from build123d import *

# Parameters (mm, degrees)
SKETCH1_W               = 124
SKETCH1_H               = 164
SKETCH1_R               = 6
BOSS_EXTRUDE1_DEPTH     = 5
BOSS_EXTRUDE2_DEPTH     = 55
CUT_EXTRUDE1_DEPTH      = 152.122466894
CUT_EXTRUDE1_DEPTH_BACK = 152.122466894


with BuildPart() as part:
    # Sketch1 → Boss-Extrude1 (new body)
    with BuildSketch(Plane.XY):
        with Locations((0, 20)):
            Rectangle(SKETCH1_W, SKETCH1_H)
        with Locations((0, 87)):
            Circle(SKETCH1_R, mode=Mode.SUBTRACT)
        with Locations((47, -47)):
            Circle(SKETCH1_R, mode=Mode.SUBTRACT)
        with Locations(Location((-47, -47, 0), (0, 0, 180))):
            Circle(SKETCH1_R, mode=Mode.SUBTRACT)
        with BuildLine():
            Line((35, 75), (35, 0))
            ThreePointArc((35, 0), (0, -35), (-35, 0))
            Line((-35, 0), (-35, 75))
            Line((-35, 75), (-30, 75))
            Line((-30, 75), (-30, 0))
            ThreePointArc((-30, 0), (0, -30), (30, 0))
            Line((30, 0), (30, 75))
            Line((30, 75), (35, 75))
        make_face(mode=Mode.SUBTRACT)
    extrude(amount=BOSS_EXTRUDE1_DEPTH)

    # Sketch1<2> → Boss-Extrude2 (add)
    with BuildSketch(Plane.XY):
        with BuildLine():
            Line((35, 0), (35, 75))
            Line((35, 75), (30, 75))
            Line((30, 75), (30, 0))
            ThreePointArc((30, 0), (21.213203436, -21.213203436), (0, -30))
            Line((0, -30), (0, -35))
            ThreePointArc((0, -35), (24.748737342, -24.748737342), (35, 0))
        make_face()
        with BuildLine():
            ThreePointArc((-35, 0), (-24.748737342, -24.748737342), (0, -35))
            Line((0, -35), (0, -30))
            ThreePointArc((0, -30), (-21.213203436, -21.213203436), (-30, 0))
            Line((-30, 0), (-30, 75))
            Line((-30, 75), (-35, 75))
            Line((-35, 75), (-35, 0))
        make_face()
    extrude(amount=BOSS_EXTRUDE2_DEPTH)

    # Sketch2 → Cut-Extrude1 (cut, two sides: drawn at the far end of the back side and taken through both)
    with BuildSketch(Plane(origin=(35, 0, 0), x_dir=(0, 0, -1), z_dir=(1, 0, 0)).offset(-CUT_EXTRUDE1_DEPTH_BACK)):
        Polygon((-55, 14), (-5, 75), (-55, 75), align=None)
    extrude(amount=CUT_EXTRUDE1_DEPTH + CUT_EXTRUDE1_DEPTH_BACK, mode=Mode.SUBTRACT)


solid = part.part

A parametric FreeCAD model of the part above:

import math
import FreeCAD as App
import Part
import Sketcher

doc = App.newDocument("Part")
body = doc.addObject("PartDesign::Body", "Body")

sketch1 = body.newObject("Sketcher::SketchObject", "Sketch")
sketch1.AttachmentSupport = (doc.getObject("XY_Plane"), [""])
sketch1.MapMode = "FlatFace"
sketch1.addGeometry(Part.LineSegment(App.Vector(-62, 102, 0), App.Vector(-62, -62, 0)), False)
sketch1.addGeometry(Part.LineSegment(App.Vector(-62, -62, 0), App.Vector(62, -62, 0)), False)
sketch1.addGeometry(Part.LineSegment(App.Vector(62, -62, 0), App.Vector(62, 102, 0)), False)
sketch1.addGeometry(Part.LineSegment(App.Vector(62, 102, 0), App.Vector(-62, 102, 0)), False)
sketch1.addGeometry(Part.Circle(App.Vector(-47, -47, 0), App.Vector(0, 0, 1), 6), False)
sketch1.addGeometry(Part.Circle(App.Vector(47, -47, 0), App.Vector(0, 0, 1), 6), False)
sketch1.addGeometry(Part.LineSegment(App.Vector(30, 75, 0), App.Vector(35, 75, 0)), False)
sketch1.addGeometry(Part.LineSegment(App.Vector(35, 75, 0), App.Vector(35, 0, 0)), False)
sketch1.addGeometry(Part.ArcOfCircle(Part.Circle(App.Vector(0, 0, 0), App.Vector(0, 0, 1), 35), math.radians(180), math.radians(360)), False)
sketch1.addGeometry(Part.LineSegment(App.Vector(-35, 0, 0), App.Vector(-35, 75, 0)), False)
sketch1.addGeometry(Part.LineSegment(App.Vector(-35, 75, 0), App.Vector(-30, 75, 0)), False)
sketch1.addGeometry(Part.LineSegment(App.Vector(-30, 75, 0), App.Vector(-30, 0, 0)), False)
sketch1.addGeometry(Part.ArcOfCircle(Part.Circle(App.Vector(0, 0, 0), App.Vector(0, 0, 1), 30), math.radians(180), math.radians(360)), False)
sketch1.addGeometry(Part.LineSegment(App.Vector(30, 0, 0), App.Vector(30, 75, 0)), False)
sketch1.addGeometry(Part.Circle(App.Vector(0, 87, 0), App.Vector(0, 0, 1), 6), False)
sketch1.addConstraint(Sketcher.Constraint("Coincident", 0, 2, 1, 1))
sketch1.addConstraint(Sketcher.Constraint("Coincident", 1, 2, 2, 1))
sketch1.addConstraint(Sketcher.Constraint("Coincident", 2, 2, 3, 1))
sketch1.addConstraint(Sketcher.Constraint("Coincident", 3, 2, 0, 1))
sketch1.addConstraint(Sketcher.Constraint("Coincident", 6, 2, 7, 1))
sketch1.addConstraint(Sketcher.Constraint("Tangent", 7, 2, 8, 2))
sketch1.addConstraint(Sketcher.Constraint("Tangent", 8, 1, 9, 1))
sketch1.addConstraint(Sketcher.Constraint("Coincident", 9, 2, 10, 1))
sketch1.addConstraint(Sketcher.Constraint("Coincident", 10, 2, 11, 1))
sketch1.addConstraint(Sketcher.Constraint("Tangent", 11, 2, 12, 1))
sketch1.addConstraint(Sketcher.Constraint("Tangent", 12, 2, 13, 1))
sketch1.addConstraint(Sketcher.Constraint("Coincident", 13, 2, 6, 1))
sketch1.addConstraint(Sketcher.Constraint("Vertical", 0))
sketch1.addConstraint(Sketcher.Constraint("Horizontal", 1))
sketch1.addConstraint(Sketcher.Constraint("Vertical", 2))
sketch1.addConstraint(Sketcher.Constraint("Horizontal", 3))
sketch1.addConstraint(Sketcher.Constraint("Horizontal", 6))
sketch1.addConstraint(Sketcher.Constraint("Vertical", 7))
sketch1.addConstraint(Sketcher.Constraint("Vertical", 9))
sketch1.addConstraint(Sketcher.Constraint("Horizontal", 10))
sketch1.addConstraint(Sketcher.Constraint("Vertical", 11))
sketch1.addConstraint(Sketcher.Constraint("Vertical", 13))
sketch1.addConstraint(Sketcher.Constraint("Coincident", 8, 3, -1, 1))
sketch1.addConstraint(Sketcher.Constraint("Coincident", 12, 3, -1, 1))
sketch1.addConstraint(Sketcher.Constraint("Equal", 4, 5))
sketch1.addConstraint(Sketcher.Constraint("Equal", 5, 14))
sketch1.addConstraint(Sketcher.Constraint("Symmetric", 4, 3, 5, 3, -2))
sketch1.addConstraint(Sketcher.Constraint("PointOnObject", 14, 3, -2))
sketch1.addConstraint(Sketcher.Constraint("Horizontal", 6, 2, 9, 2))
sketch1.addConstraint(Sketcher.Constraint("Diameter", 4, 12.0))
sketch1.addConstraint(Sketcher.Constraint("Radius", 8, 35.0))
sketch1.addConstraint(Sketcher.Constraint("Radius", 12, 30.0))
sketch1.addConstraint(Sketcher.Constraint("DistanceX", 1, 1, 1, 2, 124.0))
sketch1.addConstraint(Sketcher.Constraint("DistanceY", 0, 2, 0, 1, 164.0))
sketch1.addConstraint(Sketcher.Constraint("DistanceY", 7, 2, 7, 1, 75.0))
sketch1.addConstraint(Sketcher.Constraint("DistanceX", 4, 3, -1, 1, 47.0))
sketch1.addConstraint(Sketcher.Constraint("DistanceY", 4, 3, -1, 1, 47.0))
sketch1.addConstraint(Sketcher.Constraint("DistanceY", -1, 1, 14, 3, 87.0))
sketch1.addConstraint(Sketcher.Constraint("DistanceX", 0, 2, -1, 1, 62.0))
sketch1.addConstraint(Sketcher.Constraint("DistanceY", 0, 2, -1, 1, 62.0))
pad1 = body.newObject("PartDesign::Pad", "Pad")
pad1.Profile = sketch1
pad1.Length = 5

sketch2 = body.newObject("Sketcher::SketchObject", "Sketch001")
sketch2.AttachmentSupport = (doc.getObject("XY_Plane"), [""])
sketch2.MapMode = "FlatFace"
sketch2.addGeometry(Part.LineSegment(App.Vector(35, 0, 0), App.Vector(35, 75, 0)), False)
sketch2.addGeometry(Part.LineSegment(App.Vector(35, 75, 0), App.Vector(30, 75, 0)), False)
sketch2.addGeometry(Part.LineSegment(App.Vector(30, 75, 0), App.Vector(30, 0, 0)), False)
sketch2.addGeometry(Part.ArcOfCircle(Part.Circle(App.Vector(0, 0, 0), App.Vector(0, 0, 1), 30), math.radians(-90), math.radians(0)), False)
sketch2.addGeometry(Part.ArcOfCircle(Part.Circle(App.Vector(0, 0, 0), App.Vector(0, 0, 1), 30), math.radians(180), math.radians(270)), False)
sketch2.addGeometry(Part.LineSegment(App.Vector(-30, 0, 0), App.Vector(-30, 75, 0)), False)
sketch2.addGeometry(Part.LineSegment(App.Vector(-30, 75, 0), App.Vector(-35, 75, 0)), False)
sketch2.addGeometry(Part.LineSegment(App.Vector(-35, 75, 0), App.Vector(-35, 0, 0)), False)
sketch2.addGeometry(Part.ArcOfCircle(Part.Circle(App.Vector(0, 0, 0), App.Vector(0, 0, 1), 35), math.radians(180), math.radians(270)), False)
sketch2.addGeometry(Part.ArcOfCircle(Part.Circle(App.Vector(0, 0, 0), App.Vector(0, 0, 1), 35), math.radians(-90), math.radians(0)), False)
sketch2.addConstraint(Sketcher.Constraint("Coincident", 0, 2, 1, 1))
sketch2.addConstraint(Sketcher.Constraint("Coincident", 1, 2, 2, 1))
sketch2.addConstraint(Sketcher.Constraint("Tangent", 2, 2, 3, 2))
sketch2.addConstraint(Sketcher.Constraint("Tangent", 3, 1, 4, 2))
sketch2.addConstraint(Sketcher.Constraint("Tangent", 4, 1, 5, 1))
sketch2.addConstraint(Sketcher.Constraint("Coincident", 5, 2, 6, 1))
sketch2.addConstraint(Sketcher.Constraint("Coincident", 6, 2, 7, 1))
sketch2.addConstraint(Sketcher.Constraint("Tangent", 7, 2, 8, 1))
sketch2.addConstraint(Sketcher.Constraint("Tangent", 8, 2, 9, 1))
sketch2.addConstraint(Sketcher.Constraint("Tangent", 9, 2, 0, 1))
sketch2.addConstraint(Sketcher.Constraint("Vertical", 0))
sketch2.addConstraint(Sketcher.Constraint("Horizontal", 1))
sketch2.addConstraint(Sketcher.Constraint("Vertical", 2))
sketch2.addConstraint(Sketcher.Constraint("Vertical", 5))
sketch2.addConstraint(Sketcher.Constraint("Horizontal", 6))
sketch2.addConstraint(Sketcher.Constraint("Vertical", 7))
sketch2.addConstraint(Sketcher.Constraint("Coincident", 3, 3, -1, 1))
sketch2.addConstraint(Sketcher.Constraint("Coincident", 8, 3, -1, 1))
sketch2.addConstraint(Sketcher.Constraint("Equal", 3, 4))
sketch2.addConstraint(Sketcher.Constraint("Equal", 8, 9))
sketch2.addConstraint(Sketcher.Constraint("PointOnObject", 3, 1, -2))
sketch2.addConstraint(Sketcher.Constraint("PointOnObject", 8, 2, -2))
sketch2.addConstraint(Sketcher.Constraint("Horizontal", 1, 2, 5, 2))
sketch2.addConstraint(Sketcher.Constraint("Radius", 3, 30.0))
sketch2.addConstraint(Sketcher.Constraint("Radius", 8, 35.0))
sketch2.addConstraint(Sketcher.Constraint("DistanceY", 0, 1, 0, 2, 75.0))
pad2 = body.newObject("PartDesign::Pad", "Pad001")
pad2.Profile = sketch2
pad2.Length = 55

sketch3 = body.newObject("Sketcher::SketchObject", "Sketch002")
sketch3.AttachmentSupport = (doc.getObject("YZ_Plane"), [""])
sketch3.MapMode = "FlatFace"
sketch3.AttachmentOffset = App.Placement(App.Vector(0, 0, 35), App.Rotation())
sketch3.addGeometry(Part.LineSegment(App.Vector(14, 55, 0), App.Vector(75, 5, 0)), False)
sketch3.addGeometry(Part.LineSegment(App.Vector(75, 5, 0), App.Vector(75, 55, 0)), False)
sketch3.addGeometry(Part.LineSegment(App.Vector(75, 55, 0), App.Vector(14, 55, 0)), False)
sketch3.addConstraint(Sketcher.Constraint("Coincident", 0, 2, 1, 1))
sketch3.addConstraint(Sketcher.Constraint("Coincident", 1, 2, 2, 1))
sketch3.addConstraint(Sketcher.Constraint("Coincident", 2, 2, 0, 1))
sketch3.addConstraint(Sketcher.Constraint("Vertical", 1))
sketch3.addConstraint(Sketcher.Constraint("Horizontal", 2))
sketch3.addConstraint(Sketcher.Constraint("DistanceX", 2, 2, 2, 1, 61.0))
sketch3.addConstraint(Sketcher.Constraint("DistanceY", 1, 1, 1, 2, 50.0))
sketch3.addConstraint(Sketcher.Constraint("DistanceX", -1, 1, 0, 2, 75.0))
sketch3.addConstraint(Sketcher.Constraint("DistanceY", -1, 1, 0, 2, 5.0))
pocket1 = body.newObject("PartDesign::Pocket", "Pocket")
pocket1.Profile = sketch3
pocket1.Type = "ThroughAll"
pocket1.Midplane = True

doc.recompute()
